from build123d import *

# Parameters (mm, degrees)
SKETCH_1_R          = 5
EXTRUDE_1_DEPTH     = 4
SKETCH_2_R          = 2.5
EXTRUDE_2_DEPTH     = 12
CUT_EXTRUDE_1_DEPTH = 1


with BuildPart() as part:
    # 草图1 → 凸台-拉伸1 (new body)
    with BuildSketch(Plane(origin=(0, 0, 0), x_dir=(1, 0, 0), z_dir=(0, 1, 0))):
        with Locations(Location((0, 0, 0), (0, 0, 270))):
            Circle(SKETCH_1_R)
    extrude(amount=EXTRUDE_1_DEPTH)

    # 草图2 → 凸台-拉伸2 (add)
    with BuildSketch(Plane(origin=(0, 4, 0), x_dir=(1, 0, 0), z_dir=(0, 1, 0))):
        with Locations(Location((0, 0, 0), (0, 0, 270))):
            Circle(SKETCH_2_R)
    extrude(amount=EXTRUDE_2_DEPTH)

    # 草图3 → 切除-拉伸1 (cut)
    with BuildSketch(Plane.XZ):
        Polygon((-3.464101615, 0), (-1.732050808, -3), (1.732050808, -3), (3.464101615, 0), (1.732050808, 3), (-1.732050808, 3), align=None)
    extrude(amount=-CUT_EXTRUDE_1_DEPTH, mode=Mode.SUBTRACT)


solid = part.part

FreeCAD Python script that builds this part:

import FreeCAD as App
import Part
import Sketcher
from FreeCAD import Vector
Q = App.Units.Quantity

doc = App.newDocument("Part")
body = doc.addObject("PartDesign::Body", "Body")

sketch1 = body.newObject("Sketcher::SketchObject", "Sketch")
sketch1.AttachmentSupport = (doc.getObject("XZ_Plane"), [""])
sketch1.MapMode = "FlatFace"
sketch1.addGeometry(Part.Circle(Vector(0, 0, 0), Vector(0, 0, 1), 5), False)
sketch1.addConstraint([
    Sketcher.Constraint("Coincident", 0, 3, -1, 1),
    Sketcher.Constraint("Diameter", 0, Q("10 mm")),
])
pad1 = body.newObject("PartDesign::Pad", "Pad")
pad1.Profile = sketch1
pad1.Length = 4
pad1.Reversed = True

sketch2 = body.newObject("Sketcher::SketchObject", "Sketch001")
sketch2.AttachmentSupport = (doc.getObject("XZ_Plane"), [""])
sketch2.MapMode = "FlatFace"
sketch2.AttachmentOffset = App.Placement(Vector(0, 0, -4), App.Rotation())
sketch2.addGeometry(Part.Circle(Vector(0, 0, 0), Vector(0, 0, 1), 2.5), False)
sketch2.addConstraint([
    Sketcher.Constraint("Coincident", 0, 3, -1, 1),
    Sketcher.Constraint("Diameter", 0, Q("5 mm")),
])
pad2 = body.newObject("PartDesign::Pad", "Pad001")
pad2.Profile = sketch2
pad2.Length = 12
pad2.Reversed = True

sketch3 = body.newObject("Sketcher::SketchObject", "Sketch002")
sketch3.AttachmentSupport = (doc.getObject("XZ_Plane"), [""])
sketch3.MapMode = "FlatFace"
sketch3.addGeometry([
    Part.LineSegment(Vector(-3.464102, 0, 0), Vector(-1.732051, -3, 0)),
    Part.LineSegment(Vector(-1.732051, -3, 0), Vector(1.732051, -3, 0)),
    Part.LineSegment(Vector(1.732051, -3, 0), Vector(3.464102, 0, 0)),
    Part.LineSegment(Vector(3.464102, 0, 0), Vector(1.732051, 3, 0)),
    Part.LineSegment(Vector(1.732051, 3, 0), Vector(-1.732051, 3, 0)),
    Part.LineSegment(Vector(-1.732051, 3, 0), Vector(-3.464102, 0, 0)),
], False)
sketch3.addConstraint([
    Sketcher.Constraint("Coincident", 0, 2, 1, 1),
    Sketcher.Constraint("Coincident", 1, 2, 2, 1),
    Sketcher.Constraint("Coincident", 2, 2, 3, 1),
    Sketcher.Constraint("Coincident", 3, 2, 4, 1),
    Sketcher.Constraint("Coincident", 4, 2, 5, 1),
    Sketcher.Constraint("Coincident", 5, 2, 0, 1),
    Sketcher.Constraint("Horizontal", 1),
    Sketcher.Constraint("Horizontal", 4),
    Sketcher.Constraint("Symmetric", 0, 2, 3, 2, -1, 1),
    Sketcher.Constraint("Symmetric", 2, 2, 5, 2, -1, 1),
    Sketcher.Constraint("PointOnObject", 2, 2, -1),
    Sketcher.Constraint("Parallel", 2, 5),
    Sketcher.Constraint("Vertical", 1, 2, 3, 2),
    Sketcher.Constraint("Angle", 0, Q("-60 deg")),
    Sketcher.Constraint("DistanceY", 0, 2, -1, 1, Q("3 mm")),
    Sketcher.Constraint("DistanceX", 1, 1, 1, 2, Q("3.464102 mm")),
])
pocket1 = body.newObject("PartDesign::Pocket", "Pocket")
pocket1.Profile = sketch3
pocket1.Length = 1

doc.recompute()
